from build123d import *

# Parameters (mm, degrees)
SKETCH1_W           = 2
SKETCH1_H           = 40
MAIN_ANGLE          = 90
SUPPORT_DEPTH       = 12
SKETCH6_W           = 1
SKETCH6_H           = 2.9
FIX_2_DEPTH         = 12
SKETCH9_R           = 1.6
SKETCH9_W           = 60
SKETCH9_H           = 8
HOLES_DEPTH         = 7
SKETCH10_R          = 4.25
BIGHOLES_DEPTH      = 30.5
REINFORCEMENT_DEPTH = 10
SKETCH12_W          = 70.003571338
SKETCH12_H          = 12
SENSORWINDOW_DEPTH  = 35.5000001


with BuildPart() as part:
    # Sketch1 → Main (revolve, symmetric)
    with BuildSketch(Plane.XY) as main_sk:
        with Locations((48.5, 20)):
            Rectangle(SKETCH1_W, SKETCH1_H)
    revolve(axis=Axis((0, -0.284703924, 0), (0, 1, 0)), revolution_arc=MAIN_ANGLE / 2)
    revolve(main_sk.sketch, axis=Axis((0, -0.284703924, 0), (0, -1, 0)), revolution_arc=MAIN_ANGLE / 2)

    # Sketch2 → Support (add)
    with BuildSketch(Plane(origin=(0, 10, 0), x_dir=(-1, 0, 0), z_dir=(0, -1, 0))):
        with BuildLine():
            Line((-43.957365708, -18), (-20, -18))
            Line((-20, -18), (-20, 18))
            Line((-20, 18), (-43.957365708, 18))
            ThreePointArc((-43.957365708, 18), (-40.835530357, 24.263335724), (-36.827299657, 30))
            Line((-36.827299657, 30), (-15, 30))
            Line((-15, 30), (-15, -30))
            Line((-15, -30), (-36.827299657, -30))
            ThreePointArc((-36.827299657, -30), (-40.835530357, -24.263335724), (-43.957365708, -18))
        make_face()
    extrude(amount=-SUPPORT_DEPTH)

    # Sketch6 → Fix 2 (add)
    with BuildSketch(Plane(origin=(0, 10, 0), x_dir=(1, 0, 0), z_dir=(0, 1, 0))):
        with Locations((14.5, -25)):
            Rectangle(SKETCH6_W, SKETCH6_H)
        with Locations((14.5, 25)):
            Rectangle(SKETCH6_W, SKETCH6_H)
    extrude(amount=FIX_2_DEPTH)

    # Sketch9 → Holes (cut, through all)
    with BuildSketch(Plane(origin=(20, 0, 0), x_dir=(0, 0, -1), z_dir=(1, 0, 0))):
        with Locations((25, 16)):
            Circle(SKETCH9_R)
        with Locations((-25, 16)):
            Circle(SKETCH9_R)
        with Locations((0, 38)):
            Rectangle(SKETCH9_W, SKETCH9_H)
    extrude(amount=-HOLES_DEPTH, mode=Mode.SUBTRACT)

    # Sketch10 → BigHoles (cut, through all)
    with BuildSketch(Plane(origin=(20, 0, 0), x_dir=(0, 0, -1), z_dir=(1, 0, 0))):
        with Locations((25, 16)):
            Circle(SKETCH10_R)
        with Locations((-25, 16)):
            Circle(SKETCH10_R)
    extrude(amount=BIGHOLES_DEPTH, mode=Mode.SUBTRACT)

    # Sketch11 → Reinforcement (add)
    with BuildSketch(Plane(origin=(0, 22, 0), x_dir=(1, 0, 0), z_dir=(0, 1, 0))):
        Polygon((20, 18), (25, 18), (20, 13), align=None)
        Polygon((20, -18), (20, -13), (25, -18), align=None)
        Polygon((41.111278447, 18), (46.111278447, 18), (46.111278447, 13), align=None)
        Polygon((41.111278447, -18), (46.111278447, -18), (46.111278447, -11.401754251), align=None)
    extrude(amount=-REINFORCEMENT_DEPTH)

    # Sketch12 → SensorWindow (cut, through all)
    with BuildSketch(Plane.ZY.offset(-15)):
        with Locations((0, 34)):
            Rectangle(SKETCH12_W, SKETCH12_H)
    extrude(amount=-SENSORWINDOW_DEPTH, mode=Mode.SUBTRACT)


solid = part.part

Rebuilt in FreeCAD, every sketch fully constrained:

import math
import FreeCAD as App
import Part
import Sketcher

V = App.Vector
Q = App.Units.Quantity


def add_polygon(sketch, points):
    """Adds a closed chain of lines whose ends are joined by coincident constraints."""
    first, n = sketch.GeometryCount, len(points)
    for a, b in zip(points, points[1:] + points[:1]):
        sketch.addGeometry(Part.LineSegment(App.Vector(*a, 0), App.Vector(*b, 0)), False)
    for i in range(n):
        sketch.addConstraint(Sketcher.Constraint("Coincident", first + i, 2, first + (i + 1) % n, 1))

doc = App.newDocument("Part")
body = doc.addObject("PartDesign::Body", "Body")

sketch1 = body.newObject("Sketcher::SketchObject", "Sketch")
sketch1.AttachmentSupport = (doc.getObject("XY_Plane"), [""])
sketch1.MapMode = "FlatFace"
add_polygon(sketch1, [(47.5, 40), (47.5, 0), (49.5, 0), (49.5, 40)])
sketch1.addConstraint([
    Sketcher.Constraint("Vertical", 0),
    Sketcher.Constraint("Horizontal", 1),
    Sketcher.Constraint("Vertical", 2),
    Sketcher.Constraint("Horizontal", 3),
    Sketcher.Constraint("PointOnObject", 0, 2, -1),
    Sketcher.Constraint("DistanceX", 1, 1, 1, 2, Q("2 mm")),
    Sketcher.Constraint("DistanceY", 0, 2, 0, 1, Q("40 mm")),
    Sketcher.Constraint("DistanceX", -1, 1, 0, 2, Q("47.5 mm")),
])
revolution = body.newObject("PartDesign::Revolution", "Revolution")
revolution.Profile = sketch1
revolution.ReferenceAxis = (sketch1, ["V_Axis"])
revolution.Angle = 45

sketch2 = body.newObject("Sketcher::SketchObject", "Sketch001")
sketch2.AttachmentSupport = (doc.getObject("XY_Plane"), [""])
sketch2.MapMode = "FlatFace"
add_polygon(sketch2, [(47.5, 40), (47.5, 0), (49.5, 0), (49.5, 40)])
sketch2.addConstraint([
    Sketcher.Constraint("Vertical", 0),
    Sketcher.Constraint("Horizontal", 1),
    Sketcher.Constraint("Vertical", 2),
    Sketcher.Constraint("Horizontal", 3),
    Sketcher.Constraint("PointOnObject", 0, 2, -1),
    Sketcher.Constraint("DistanceX", 1, 1, 1, 2, Q("2 mm")),
    Sketcher.Constraint("DistanceY", 0, 2, 0, 1, Q("40 mm")),
    Sketcher.Constraint("DistanceX", -1, 1, 0, 2, Q("47.5 mm")),
])
revolution2 = body.newObject("PartDesign::Revolution", "Revolution001")
revolution2.Profile = sketch2
revolution2.ReferenceAxis = (sketch2, ["V_Axis"])
revolution2.Angle = 45
revolution2.Reversed = True

sketch3 = body.newObject("Sketcher::SketchObject", "Sketch002")
sketch3.AttachmentSupport = (doc.getObject("XZ_Plane"), [""])
sketch3.MapMode = "FlatFace"
sketch3.AttachmentOffset = App.Placement(V(0, 0, -10), App.Rotation())
sketch3.addGeometry([
    Part.LineSegment(V(20, 18, 0), V(44, 18, 0)),
    Part.ArcOfCircle(Part.Circle(V(0, 0, 0), V(0, 0, 1), 48), math.radians(22.27), math.radians(39.17)),
    Part.LineSegment(V(37, 30, 0), V(15, 30, 0)),
    Part.LineSegment(V(15, 30, 0), V(15, -30, 0)),
    Part.LineSegment(V(15, -30, 0), V(37, -30, 0)),
    Part.ArcOfCircle(Part.Circle(V(0, 0, 0), V(0, 0, 1), 48), math.radians(-39.17), math.radians(-22.27)),
    Part.LineSegment(V(44, -18, 0), V(20, -18, 0)),
    Part.LineSegment(V(20, -18, 0), V(20, 18, 0)),
], False)
sketch3.addConstraint([
    Sketcher.Constraint("Coincident", 0, 2, 1, 1),
    Sketcher.Constraint("Coincident", 1, 2, 2, 1),
    Sketcher.Constraint("Coincident", 2, 2, 3, 1),
    Sketcher.Constraint("Coincident", 3, 2, 4, 1),
    Sketcher.Constraint("Coincident", 4, 2, 5, 1),
    Sketcher.Constraint("Coincident", 5, 2, 6, 1),
    Sketcher.Constraint("Coincident", 6, 2, 7, 1),
    Sketcher.Constraint("Coincident", 7, 2, 0, 1),
    Sketcher.Constraint("Horizontal", 0),
    Sketcher.Constraint("Horizontal", 2),
    Sketcher.Constraint("Vertical", 3),
    Sketcher.Constraint("Horizontal", 4),
    Sketcher.Constraint("Horizontal", 6),
    Sketcher.Constraint("Vertical", 7),
    Sketcher.Constraint("Coincident", 1, 3, -1, 1),
    Sketcher.Constraint("Coincident", 5, 3, -1, 1),
    Sketcher.Constraint("Equal", 1, 5),
    Sketcher.Constraint("Vertical", 1, 2, 4, 2),
    Sketcher.Constraint("Vertical", 0, 2, 5, 2),
    Sketcher.Constraint("Radius", 1, Q("47.5 mm")),
    Sketcher.Constraint("DistanceY", 3, 2, 3, 1, Q("60 mm")),
    Sketcher.Constraint("DistanceY", 7, 1, 7, 2, Q("36 mm")),
    Sketcher.Constraint("DistanceX", -1, 1, 2, 2, Q("15 mm")),
    Sketcher.Constraint("DistanceX", -1, 1, 6, 2, Q("20 mm")),
])
pad1 = body.newObject("PartDesign::Pad", "Pad")
pad1.Profile = sketch3
pad1.Length = 12
pad1.Reversed = True

sketch4 = body.newObject("Sketcher::SketchObject", "Sketch003")
sketch4.AttachmentSupport = (doc.getObject("XZ_Plane"), [""])
sketch4.MapMode = "FlatFace"
sketch4.AttachmentOffset = App.Placement(V(0, 0, -10), App.Rotation())
add_polygon(sketch4, [(14, 23.6), (14, 26.4), (15, 26.4), (15, 23.6)])
add_polygon(sketch4, [(14, -26.4), (14, -23.6), (15, -23.6), (15, -26.4)])
sketch4.addConstraint([
    Sketcher.Constraint("Vertical", 0),
    Sketcher.Constraint("Horizontal", 1),
    Sketcher.Constraint("Vertical", 2),
    Sketcher.Constraint("Horizontal", 3),
    Sketcher.Constraint("Vertical", 4),
    Sketcher.Constraint("Horizontal", 5),
    Sketcher.Constraint("Vertical", 6),
    Sketcher.Constraint("Horizontal", 7),
    Sketcher.Constraint("Symmetric", 3, 2, 4, 2, -1),
    Sketcher.Constraint("Symmetric", 1, 2, 6, 2, -1),
    Sketcher.Constraint("DistanceX", 1, 1, 1, 2, Q("1 mm")),
    Sketcher.Constraint("DistanceY", 0, 1, 0, 2, Q("2.9 mm")),
    Sketcher.Constraint("DistanceX", -1, 1, 0, 2, Q("14 mm")),
    Sketcher.Constraint("DistanceY", 4, 2, 0, 2, Q("50 mm")),
])
pad2 = body.newObject("PartDesign::Pad", "Pad001")
pad2.Profile = sketch4
pad2.Length = 12
pad2.Reversed = True

sketch5 = body.newObject("Sketcher::SketchObject", "Sketch004")
sketch5.AttachmentSupport = (doc.getObject("YZ_Plane"), [""])
sketch5.MapMode = "FlatFace"
sketch5.AttachmentOffset = App.Placement(V(0, 0, 20), App.Rotation())
sketch5.addGeometry(Part.Circle(V(16, -25, 0), V(0, 0, 1), 1.6), False)
sketch5.addGeometry(Part.Circle(V(16, 25, 0), V(0, 0, 1), 1.6), False)
add_polygon(sketch5, [(42, 30), (34, 30), (34, -30), (42, -30)])
sketch5.addConstraint([
    Sketcher.Constraint("Horizontal", 2),
    Sketcher.Constraint("Vertical", 3),
    Sketcher.Constraint("Horizontal", 4),
    Sketcher.Constraint("Vertical", 5),
    Sketcher.Constraint("Equal", 0, 1),
    Sketcher.Constraint("Symmetric", 0, 3, 1, 3, -1),
    Sketcher.Constraint("Diameter", 0, Q("3.2 mm")),
    Sketcher.Constraint("DistanceX", 2, 2, 2, 1, Q("8 mm")),
    Sketcher.Constraint("DistanceY", 3, 2, 3, 1, Q("60 mm")),
    Sketcher.Constraint("DistanceX", -1, 1, 0, 3, Q("16 mm")),
    Sketcher.Constraint("DistanceY", 0, 3, -1, 1, Q("25 mm")),
    Sketcher.Constraint("DistanceX", -1, 1, 2, 2, Q("34 mm")),
    Sketcher.Constraint("DistanceY", -1, 1, 2, 2, Q("30 mm")),
])
pocket1 = body.newObject("PartDesign::Pocket", "Pocket")
pocket1.Profile = sketch5
pocket1.Type = "ThroughAll"

sketch6 = body.newObject("Sketcher::SketchObject", "Sketch005")
sketch6.AttachmentSupport = (doc.getObject("YZ_Plane"), [""])
sketch6.MapMode = "FlatFace"
sketch6.AttachmentOffset = App.Placement(V(0, 0, 20), App.Rotation())
sketch6.addGeometry([
    Part.Circle(V(16, -25, 0), V(0, 0, 1), 4.2),
    Part.Circle(V(16, 25, 0), V(0, 0, 1), 4.2),
], False)
sketch6.addConstraint([
    Sketcher.Constraint("Equal", 0, 1),
    Sketcher.Constraint("Symmetric", 0, 3, 1, 3, -1),
    Sketcher.Constraint("Diameter", 0, Q("8.5 mm")),
    Sketcher.Constraint("DistanceX", -1, 1, 0, 3, Q("16 mm")),
    Sketcher.Constraint("DistanceY", 0, 3, -1, 1, Q("25 mm")),
])
pocket2 = body.newObject("PartDesign::Pocket", "Pocket001")
pocket2.Profile = sketch6
pocket2.Type = "ThroughAll"
pocket2.Reversed = True

sketch7 = body.newObject("Sketcher::SketchObject", "Sketch006")
sketch7.AttachmentSupport = (doc.getObject("XZ_Plane"), [""])
sketch7.MapMode = "FlatFace"
sketch7.AttachmentOffset = App.Placement(V(0, 0, -22), App.Rotation())
add_polygon(sketch7, [(25, -18), (20, -18), (20, -13)])
add_polygon(sketch7, [(20, 13), (20, 18), (25, 18)])
add_polygon(sketch7, [(46, -18), (41, -18), (46, -13)])
add_polygon(sketch7, [(41, 18), (46, 18), (46, 11)])
sketch7.addConstraint([
    Sketcher.Constraint("Horizontal", 0),
    Sketcher.Constraint("Vertical", 1),
    Sketcher.Constraint("Vertical", 3),
    Sketcher.Constraint("Horizontal", 4),
    Sketcher.Constraint("Horizontal", 6),
    Sketcher.Constraint("Vertical", 8),
    Sketcher.Constraint("Horizontal", 9),
    Sketcher.Constraint("Vertical", 10),
    Sketcher.Constraint("Symmetric", 0, 2, 3, 2, -1),
    Sketcher.Constraint("Symmetric", 8, 2, 9, 2, -1),
    Sketcher.Constraint("Perpendicular", 2, 5),
    Sketcher.Constraint("Parallel", 5, 7),
    Sketcher.Constraint("Horizontal", 2, 2, 6, 2),
    Sketcher.Constraint("Horizontal", 1, 2, 7, 2),
    Sketcher.Constraint("Vertical", 2, 2, 4, 2),
    Sketcher.Constraint("Vertical", 6, 2, 11, 2),
    Sketcher.Constraint("Equal", 4, 6),
    Sketcher.Constraint("DistanceX", 0, 2, 0, 1, Q("5 mm")),
    Sketcher.Constraint("DistanceX", -1, 1, 0, 2, Q("20 mm")),
    Sketcher.Constraint("DistanceY", 0, 2, -1, 1, Q("18 mm")),
    Sketcher.Constraint("Distance", 11, Q("8.278698 mm")),
    Sketcher.Constraint("DistanceX", -1, 1, 6, 2, Q("41.111278 mm")),
])
pad3 = body.newObject("PartDesign::Pad", "Pad002")
pad3.Profile = sketch7
pad3.Length = 10

sketch8 = body.newObject("Sketcher::SketchObject", "Sketch007")
sketch8.AttachmentSupport = (doc.getObject("YZ_Plane"), [""])
sketch8.MapMode = "FlatFace"
sketch8.AttachmentOffset = App.Placement(V(0, 0, 15), App.Rotation())
add_polygon(sketch8, [(40, -35), (28, -35), (28, 35), (40, 35)])
sketch8.addConstraint([
    Sketcher.Constraint("Horizontal", 0),
    Sketcher.Constraint("Vertical", 1),
    Sketcher.Constraint("Horizontal", 2),
    Sketcher.Constraint("Vertical", 3),
    Sketcher.Constraint("DistanceX", 0, 2, 0, 1, Q("12 mm")),
    Sketcher.Constraint("DistanceX", -1, 1, 0, 2, Q("28 mm")),
    Sketcher.Constraint("DistanceY", 1, 1, 1, 2, Q("70.003571 mm")),
    Sketcher.Constraint("DistanceY", 0, 2, -1, 1, Q("35.001786 mm")),
])
pocket3 = body.newObject("PartDesign::Pocket", "Pocket002")
pocket3.Profile = sketch8
pocket3.Type = "ThroughAll"
pocket3.Reversed = True

doc.recompute()
